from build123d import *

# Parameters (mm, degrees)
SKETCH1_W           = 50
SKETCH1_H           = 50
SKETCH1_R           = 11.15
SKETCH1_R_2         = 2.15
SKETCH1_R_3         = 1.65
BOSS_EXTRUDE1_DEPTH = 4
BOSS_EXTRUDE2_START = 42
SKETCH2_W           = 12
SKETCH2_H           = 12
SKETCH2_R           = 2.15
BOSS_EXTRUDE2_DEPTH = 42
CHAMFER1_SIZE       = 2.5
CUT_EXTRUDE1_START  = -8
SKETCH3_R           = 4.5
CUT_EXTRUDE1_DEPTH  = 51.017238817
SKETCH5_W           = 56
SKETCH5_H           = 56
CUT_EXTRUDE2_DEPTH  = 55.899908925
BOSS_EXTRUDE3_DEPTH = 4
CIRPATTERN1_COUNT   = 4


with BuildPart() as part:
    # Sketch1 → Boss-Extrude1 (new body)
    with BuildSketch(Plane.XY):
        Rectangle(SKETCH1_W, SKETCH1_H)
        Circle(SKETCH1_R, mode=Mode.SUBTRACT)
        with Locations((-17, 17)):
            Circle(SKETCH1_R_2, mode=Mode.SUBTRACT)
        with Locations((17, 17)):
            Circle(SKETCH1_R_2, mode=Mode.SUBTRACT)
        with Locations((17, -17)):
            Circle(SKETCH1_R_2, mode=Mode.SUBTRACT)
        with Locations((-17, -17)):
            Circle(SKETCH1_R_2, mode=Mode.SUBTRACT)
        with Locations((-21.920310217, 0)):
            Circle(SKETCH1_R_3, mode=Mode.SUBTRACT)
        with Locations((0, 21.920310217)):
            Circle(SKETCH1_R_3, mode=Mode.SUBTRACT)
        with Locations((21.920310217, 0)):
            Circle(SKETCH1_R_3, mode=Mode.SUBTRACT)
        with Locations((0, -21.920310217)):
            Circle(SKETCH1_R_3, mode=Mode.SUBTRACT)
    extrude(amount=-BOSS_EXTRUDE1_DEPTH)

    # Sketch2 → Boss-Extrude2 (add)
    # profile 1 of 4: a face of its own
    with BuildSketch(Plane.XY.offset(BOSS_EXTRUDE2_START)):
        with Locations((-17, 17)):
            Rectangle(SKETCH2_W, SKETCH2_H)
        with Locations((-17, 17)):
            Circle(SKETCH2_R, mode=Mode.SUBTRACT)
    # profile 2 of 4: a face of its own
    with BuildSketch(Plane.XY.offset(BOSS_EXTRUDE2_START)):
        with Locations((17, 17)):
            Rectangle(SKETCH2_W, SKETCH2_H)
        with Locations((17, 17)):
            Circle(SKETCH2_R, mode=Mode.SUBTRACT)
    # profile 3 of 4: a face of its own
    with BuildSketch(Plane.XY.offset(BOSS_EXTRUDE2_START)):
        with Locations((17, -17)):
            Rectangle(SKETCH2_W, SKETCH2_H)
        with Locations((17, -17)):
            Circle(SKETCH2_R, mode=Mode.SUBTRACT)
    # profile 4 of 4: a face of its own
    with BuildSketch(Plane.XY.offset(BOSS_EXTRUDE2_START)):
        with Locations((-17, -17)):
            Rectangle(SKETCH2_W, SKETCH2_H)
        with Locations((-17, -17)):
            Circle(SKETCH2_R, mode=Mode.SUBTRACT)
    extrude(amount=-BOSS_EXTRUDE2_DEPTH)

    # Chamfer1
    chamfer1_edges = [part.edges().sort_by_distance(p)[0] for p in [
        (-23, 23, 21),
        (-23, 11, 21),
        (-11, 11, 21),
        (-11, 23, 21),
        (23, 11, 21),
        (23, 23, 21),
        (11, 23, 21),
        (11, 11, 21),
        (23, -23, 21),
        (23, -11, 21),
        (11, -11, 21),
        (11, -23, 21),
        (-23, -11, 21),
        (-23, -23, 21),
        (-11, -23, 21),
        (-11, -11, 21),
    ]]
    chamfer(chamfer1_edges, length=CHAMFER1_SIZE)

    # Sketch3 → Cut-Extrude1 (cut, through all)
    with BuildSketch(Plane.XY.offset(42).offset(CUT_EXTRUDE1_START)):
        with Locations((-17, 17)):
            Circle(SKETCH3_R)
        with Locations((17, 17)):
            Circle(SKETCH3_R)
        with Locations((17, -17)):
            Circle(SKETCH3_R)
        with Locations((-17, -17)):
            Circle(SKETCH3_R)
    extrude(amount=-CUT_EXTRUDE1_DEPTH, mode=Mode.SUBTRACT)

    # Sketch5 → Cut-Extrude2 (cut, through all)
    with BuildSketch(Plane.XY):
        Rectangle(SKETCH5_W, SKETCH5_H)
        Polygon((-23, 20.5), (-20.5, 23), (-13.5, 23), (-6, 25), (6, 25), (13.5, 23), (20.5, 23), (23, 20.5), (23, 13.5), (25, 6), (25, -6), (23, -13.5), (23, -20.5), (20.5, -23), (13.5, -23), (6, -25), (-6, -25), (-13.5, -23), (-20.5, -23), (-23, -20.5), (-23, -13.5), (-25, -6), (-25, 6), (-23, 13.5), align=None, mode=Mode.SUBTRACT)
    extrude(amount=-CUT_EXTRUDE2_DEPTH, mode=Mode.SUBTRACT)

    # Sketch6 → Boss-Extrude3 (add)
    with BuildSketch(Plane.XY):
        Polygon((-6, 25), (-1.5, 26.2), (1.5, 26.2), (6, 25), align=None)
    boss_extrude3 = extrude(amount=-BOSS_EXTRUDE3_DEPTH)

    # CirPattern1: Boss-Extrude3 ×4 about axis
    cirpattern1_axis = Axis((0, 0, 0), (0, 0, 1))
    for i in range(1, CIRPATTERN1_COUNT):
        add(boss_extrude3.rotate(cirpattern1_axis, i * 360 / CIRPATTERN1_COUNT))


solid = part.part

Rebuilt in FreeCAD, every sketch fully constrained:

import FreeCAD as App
import Part
import Sketcher


def edges_at(feature, points):
    """Names of the edges that pass closest to the given points."""
    edges = feature.Shape.Edges
    near = lambda p: min(range(len(edges)), key=lambda i: edges[i].distToShape(Part.Vertex(*p))[0])
    return sorted({f"Edge{near(p) + 1}" for p in points})

doc = App.newDocument("Part")
body = doc.addObject("PartDesign::Body", "Body")

# Sketch on XY plane
sketch1 = body.newObject("Sketcher::SketchObject", "Sketch")
sketch1.AttachmentSupport = (doc.getObject("XY_Plane"), [""])
sketch1.MapMode = "FlatFace"
sketch1.addGeometry([
    Part.LineSegment(App.Vector(-25, 25, 0), App.Vector(-25, -25, 0)),  # 0
    Part.LineSegment(App.Vector(-25, -25, 0), App.Vector(25, -25, 0)),  # 1
    Part.LineSegment(App.Vector(25, -25, 0), App.Vector(25, 25, 0)),  # 2
    Part.LineSegment(App.Vector(25, 25, 0), App.Vector(-25, 25, 0)),  # 3
    Part.Circle(App.Vector(-17, -17, 0), App.Vector(0, 0, 1), 2.15),  # 4
    Part.Circle(App.Vector(0, -21.92031, 0), App.Vector(0, 0, 1), 1.65),  # 5
    Part.Circle(App.Vector(17, -17, 0), App.Vector(0, 0, 1), 2.15),  # 6
    Part.Circle(App.Vector(-21.92031, 0, 0), App.Vector(0, 0, 1), 1.65),  # 7
    Part.Circle(App.Vector(-17, 17, 0), App.Vector(0, 0, 1), 2.15),  # 8
    Part.Circle(App.Vector(0, 0, 0), App.Vector(0, 0, 1), 11.15),  # 9
    Part.Circle(App.Vector(21.92031, 0, 0), App.Vector(0, 0, 1), 1.65),  # 10
    Part.Circle(App.Vector(0, 21.92031, 0), App.Vector(0, 0, 1), 1.65),  # 11
    Part.Circle(App.Vector(17, 17, 0), App.Vector(0, 0, 1), 2.15),  # 12
], False)
sketch1.addConstraint([
    Sketcher.Constraint("Coincident", 0, 2, 1, 1),
    Sketcher.Constraint("Coincident", 1, 2, 2, 1),
    Sketcher.Constraint("Coincident", 2, 2, 3, 1),
    Sketcher.Constraint("Coincident", 3, 2, 0, 1),
    Sketcher.Constraint("Vertical", 0),
    Sketcher.Constraint("Horizontal", 1),
    Sketcher.Constraint("Vertical", 2),
    Sketcher.Constraint("Horizontal", 3),
    Sketcher.Constraint("Coincident", 9, 3, -1, 1),
    Sketcher.Constraint("Equal", 4, 6),
    Sketcher.Constraint("Equal", 5, 7),
    Sketcher.Constraint("Equal", 6, 8),
    Sketcher.Constraint("Equal", 7, 10),
    Sketcher.Constraint("Equal", 10, 11),
    Sketcher.Constraint("Equal", 8, 12),
    Sketcher.Constraint("Symmetric", 6, 3, 8, 3, -1, 1),
    Sketcher.Constraint("Symmetric", 7, 3, 10, 3, -1, 1),
    Sketcher.Constraint("Symmetric", 5, 3, 11, 3, -1, 1),
    Sketcher.Constraint("Symmetric", 4, 3, 12, 3, -1, 1),
    Sketcher.Constraint("Symmetric", 0, 2, 2, 2, -1, 1),
    Sketcher.Constraint("Symmetric", 4, 3, 6, 3, -2),
    Sketcher.Constraint("PointOnObject", 5, 3, -2),
    Sketcher.Constraint("PointOnObject", 7, 3, -1),
    Sketcher.Constraint("Equal", 3, 0),
    Sketcher.Constraint("Diameter", 4, 4.3),
    Sketcher.Constraint("Diameter", 5, 3.3),
    Sketcher.Constraint("Diameter", 9, 22.3),
    Sketcher.Constraint("DistanceX", 1, 1, 1, 2, 50.0),
    Sketcher.Constraint("DistanceX", 4, 3, -1, 1, 17.0),
    Sketcher.Constraint("DistanceY", 4, 3, -1, 1, 17.0),
    Sketcher.Constraint("DistanceY", 5, 3, -1, 1, 21.92031),
    Sketcher.Constraint("DistanceX", 7, 3, -1, 1, 21.92031),
])
pad1 = body.newObject("PartDesign::Pad", "Pad")
pad1.Profile = sketch1
pad1.Length = 4
pad1.Reversed = True

# Sketch on XY plane
sketch2 = body.newObject("Sketcher::SketchObject", "Sketch001")
sketch2.AttachmentSupport = (doc.getObject("XY_Plane"), [""])
sketch2.MapMode = "FlatFace"
sketch2.AttachmentOffset = App.Placement(App.Vector(0, 0, 42), App.Rotation())
sketch2.addGeometry([
    Part.LineSegment(App.Vector(-23, 23, 0), App.Vector(-23, 11, 0)),  # 0
    Part.LineSegment(App.Vector(-23, 11, 0), App.Vector(-11, 11, 0)),  # 1
    Part.LineSegment(App.Vector(-11, 11, 0), App.Vector(-11, 23, 0)),  # 2
    Part.LineSegment(App.Vector(-11, 23, 0), App.Vector(-23, 23, 0)),  # 3
    Part.Circle(App.Vector(-17, 17, 0), App.Vector(0, 0, 1), 2.15),  # 4
    Part.LineSegment(App.Vector(11, 23, 0), App.Vector(11, 11, 0)),  # 5
    Part.LineSegment(App.Vector(11, 11, 0), App.Vector(23, 11, 0)),  # 6
    Part.LineSegment(App.Vector(23, 11, 0), App.Vector(23, 23, 0)),  # 7
    Part.LineSegment(App.Vector(23, 23, 0), App.Vector(11, 23, 0)),  # 8
    Part.Circle(App.Vector(17, 17, 0), App.Vector(0, 0, 1), 2.15),  # 9
    Part.LineSegment(App.Vector(11, -11, 0), App.Vector(11, -23, 0)),  # 10
    Part.LineSegment(App.Vector(11, -23, 0), App.Vector(23, -23, 0)),  # 11
    Part.LineSegment(App.Vector(23, -23, 0), App.Vector(23, -11, 0)),  # 12
    Part.LineSegment(App.Vector(23, -11, 0), App.Vector(11, -11, 0)),  # 13
    Part.Circle(App.Vector(17, -17, 0), App.Vector(0, 0, 1), 2.15),  # 14
    Part.LineSegment(App.Vector(-23, -11, 0), App.Vector(-23, -23, 0)),  # 15
    Part.LineSegment(App.Vector(-23, -23, 0), App.Vector(-11, -23, 0)),  # 16
    Part.LineSegment(App.Vector(-11, -23, 0), App.Vector(-11, -11, 0)),  # 17
    Part.LineSegment(App.Vector(-11, -11, 0), App.Vector(-23, -11, 0)),  # 18
    Part.Circle(App.Vector(-17, -17, 0), App.Vector(0, 0, 1), 2.15),  # 19
], False)
sketch2.addConstraint([
    Sketcher.Constraint("Coincident", 0, 2, 1, 1),
    Sketcher.Constraint("Coincident", 1, 2, 2, 1),
    Sketcher.Constraint("Coincident", 2, 2, 3, 1),
    Sketcher.Constraint("Coincident", 3, 2, 0, 1),
    Sketcher.Constraint("Coincident", 5, 2, 6, 1),
    Sketcher.Constraint("Coincident", 6, 2, 7, 1),
    Sketcher.Constraint("Coincident", 7, 2, 8, 1),
    Sketcher.Constraint("Coincident", 8, 2, 5, 1),
    Sketcher.Constraint("Coincident", 10, 2, 11, 1),
    Sketcher.Constraint("Coincident", 11, 2, 12, 1),
    Sketcher.Constraint("Coincident", 12, 2, 13, 1),
    Sketcher.Constraint("Coincident", 13, 2, 10, 1),
    Sketcher.Constraint("Coincident", 15, 2, 16, 1),
    Sketcher.Constraint("Coincident", 16, 2, 17, 1),
    Sketcher.Constraint("Coincident", 17, 2, 18, 1),
    Sketcher.Constraint("Coincident", 18, 2, 15, 1),
    Sketcher.Constraint("Vertical", 0),
    Sketcher.Constraint("Horizontal", 1),
    Sketcher.Constraint("Vertical", 2),
    Sketcher.Constraint("Horizontal", 3),
    Sketcher.Constraint("Vertical", 5),
    Sketcher.Constraint("Horizontal", 6),
    Sketcher.Constraint("Vertical", 7),
    Sketcher.Constraint("Horizontal", 8),
    Sketcher.Constraint("Vertical", 10),
    Sketcher.Constraint("Horizontal", 11),
    Sketcher.Constraint("Vertical", 12),
    Sketcher.Constraint("Horizontal", 13),
    Sketcher.Constraint("Vertical", 15),
    Sketcher.Constraint("Horizontal", 16),
    Sketcher.Constraint("Vertical", 17),
    Sketcher.Constraint("Horizontal", 18),
    Sketcher.Constraint("Equal", 4, 9),
    Sketcher.Constraint("Equal", 9, 14),
    Sketcher.Constraint("Equal", 14, 19),
    Sketcher.Constraint("Symmetric", 4, 3, 14, 3, -1, 1),
    Sketcher.Constraint("Symmetric", 9, 3, 19, 3, -1, 1),
    Sketcher.Constraint("Symmetric", 2, 2, 10, 2, -1, 1),
    Sketcher.Constraint("Symmetric", 0, 2, 12, 2, -1, 1),
    Sketcher.Constraint("Symmetric", 7, 2, 15, 2, -1, 1),
    Sketcher.Constraint("Symmetric", 5, 2, 17, 2, -1, 1),
    Sketcher.Constraint("Symmetric", 4, 3, 9, 3, -2),
    Sketcher.Constraint("Symmetric", 1, 2, 5, 2, -2),
    Sketcher.Constraint("Symmetric", 3, 2, 7, 2, -2),
    Sketcher.Constraint("Equal", 18, 0),
    Sketcher.Constraint("Diameter", 4, 4.3),
    Sketcher.Constraint("DistanceX", 1, 1, 1, 2, 12.0),
    Sketcher.Constraint("DistanceX", 4, 3, -1, 1, 17.0),
    Sketcher.Constraint("DistanceY", -1, 1, 4, 3, 17.0),
    Sketcher.Constraint("DistanceX", 0, 2, -1, 1, 23.0),
    Sketcher.Constraint("DistanceY", -1, 1, 0, 2, 11.0),
])
pad2 = body.newObject("PartDesign::Pad", "Pad001")
pad2.Profile = sketch2
pad2.Length = 42
pad2.Reversed = True
doc.recompute()

chamfer = body.newObject("PartDesign::Chamfer", "Chamfer")
chamfer.Base = (pad2, edges_at(pad2, [
    (-23, 23, 21),
    (-23, 11, 21),
    (-11, 11, 21),
    (-11, 23, 21),
    (23, 11, 21),
    (23, 23, 21),
    (11, 23, 21),
    (11, 11, 21),
    (23, -23, 21),
    (23, -11, 21),
    (11, -11, 21),
    (11, -23, 21),
    (-23, -11, 21),
    (-23, -23, 21),
    (-11, -23, 21),
    (-11, -11, 21),
]))
chamfer.Size = 2.5

# Sketch on XY plane
sketch3 = body.newObject("Sketcher::SketchObject", "Sketch002")
sketch3.AttachmentSupport = (doc.getObject("XY_Plane"), [""])
sketch3.MapMode = "FlatFace"
sketch3.AttachmentOffset = App.Placement(App.Vector(0, 0, 34), App.Rotation())
sketch3.addGeometry([
    Part.Circle(App.Vector(-17, 17, 0), App.Vector(0, 0, 1), 4.5),
    Part.Circle(App.Vector(17, 17, 0), App.Vector(0, 0, 1), 4.5),
    Part.Circle(App.Vector(17, -17, 0), App.Vector(0, 0, 1), 4.5),
    Part.Circle(App.Vector(-17, -17, 0), App.Vector(0, 0, 1), 4.5),
], False)
sketch3.addConstraint([
    Sketcher.Constraint("Equal", 0, 1),
    Sketcher.Constraint("Equal", 1, 2),
    Sketcher.Constraint("Equal", 2, 3),
    Sketcher.Constraint("Symmetric", 0, 3, 2, 3, -1, 1),
    Sketcher.Constraint("Symmetric", 1, 3, 3, 3, -1, 1),
    Sketcher.Constraint("Symmetric", 0, 3, 1, 3, -2),
    Sketcher.Constraint("Diameter", 0, 9.0),
    Sketcher.Constraint("DistanceX", 0, 3, -1, 1, 17.0),
    Sketcher.Constraint("DistanceY", -1, 1, 0, 3, 17.0),
])
pocket1 = body.newObject("PartDesign::Pocket", "Pocket")
pocket1.Profile = sketch3
pocket1.Type = "ThroughAll"

# Sketch on XY plane
sketch4 = body.newObject("Sketcher::SketchObject", "Sketch003")
sketch4.AttachmentSupport = (doc.getObject("XY_Plane"), [""])
sketch4.MapMode = "FlatFace"
sketch4.addGeometry([
    Part.LineSegment(App.Vector(-28, 28, 0), App.Vector(-28, -28, 0)),  # 0
    Part.LineSegment(App.Vector(-28, -28, 0), App.Vector(28, -28, 0)),  # 1
    Part.LineSegment(App.Vector(28, -28, 0), App.Vector(28, 28, 0)),  # 2
    Part.LineSegment(App.Vector(28, 28, 0), App.Vector(-28, 28, 0)),  # 3
    Part.LineSegment(App.Vector(-23, 13.5, 0), App.Vector(-23, 20.5, 0)),  # 4
    Part.LineSegment(App.Vector(-23, 20.5, 0), App.Vector(-20.5, 23, 0)),  # 5
    Part.LineSegment(App.Vector(-20.5, 23, 0), App.Vector(-13.5, 23, 0)),  # 6
    Part.LineSegment(App.Vector(-13.5, 23, 0), App.Vector(-6, 25, 0)),  # 7
    Part.LineSegment(App.Vector(-6, 25, 0), App.Vector(6, 25, 0)),  # 8
    Part.LineSegment(App.Vector(6, 25, 0), App.Vector(13.5, 23, 0)),  # 9
    Part.LineSegment(App.Vector(13.5, 23, 0), App.Vector(20.5, 23, 0)),  # 10
    Part.LineSegment(App.Vector(20.5, 23, 0), App.Vector(23, 20.5, 0)),  # 11
    Part.LineSegment(App.Vector(23, 20.5, 0), App.Vector(23, 13.5, 0)),  # 12
    Part.LineSegment(App.Vector(23, 13.5, 0), App.Vector(25, 6, 0)),  # 13
    Part.LineSegment(App.Vector(25, 6, 0), App.Vector(25, -6, 0)),  # 14
    Part.LineSegment(App.Vector(25, -6, 0), App.Vector(23, -13.5, 0)),  # 15
    Part.LineSegment(App.Vector(23, -13.5, 0), App.Vector(23, -20.5, 0)),  # 16
    Part.LineSegment(App.Vector(23, -20.5, 0), App.Vector(20.5, -23, 0)),  # 17
    Part.LineSegment(App.Vector(20.5, -23, 0), App.Vector(13.5, -23, 0)),  # 18
    Part.LineSegment(App.Vector(13.5, -23, 0), App.Vector(6, -25, 0)),  # 19
    Part.LineSegment(App.Vector(6, -25, 0), App.Vector(-6, -25, 0)),  # 20
    Part.LineSegment(App.Vector(-6, -25, 0), App.Vector(-13.5, -23, 0)),  # 21
    Part.LineSegment(App.Vector(-13.5, -23, 0), App.Vector(-20.5, -23, 0)),  # 22
    Part.LineSegment(App.Vector(-20.5, -23, 0), App.Vector(-23, -20.5, 0)),  # 23
    Part.LineSegment(App.Vector(-23, -20.5, 0), App.Vector(-23, -13.5, 0)),  # 24
    Part.LineSegment(App.Vector(-23, -13.5, 0), App.Vector(-25, -6, 0)),  # 25
    Part.LineSegment(App.Vector(-25, -6, 0), App.Vector(-25, 6, 0)),  # 26
    Part.LineSegment(App.Vector(-25, 6, 0), App.Vector(-23, 13.5, 0)),  # 27
], False)
sketch4.addConstraint([
    Sketcher.Constraint("Coincident", 0, 2, 1, 1),
    Sketcher.Constraint("Coincident", 1, 2, 2, 1),
    Sketcher.Constraint("Coincident", 2, 2, 3, 1),
    Sketcher.Constraint("Coincident", 3, 2, 0, 1),
    Sketcher.Constraint("Coincident", 4, 2, 5, 1),
    Sketcher.Constraint("Coincident", 5, 2, 6, 1),
    Sketcher.Constraint("Coincident", 6, 2, 7, 1),
    Sketcher.Constraint("Coincident", 7, 2, 8, 1),
    Sketcher.Constraint("Coincident", 8, 2, 9, 1),
    Sketcher.Constraint("Coincident", 9, 2, 10, 1),
    Sketcher.Constraint("Coincident", 10, 2, 11, 1),
    Sketcher.Constraint("Coincident", 11, 2, 12, 1),
    Sketcher.Constraint("Coincident", 12, 2, 13, 1),
    Sketcher.Constraint("Coincident", 13, 2, 14, 1),
    Sketcher.Constraint("Coincident", 14, 2, 15, 1),
    Sketcher.Constraint("Coincident", 15, 2, 16, 1),
    Sketcher.Constraint("Coincident", 16, 2, 17, 1),
    Sketcher.Constraint("Coincident", 17, 2, 18, 1),
    Sketcher.Constraint("Coincident", 18, 2, 19, 1),
    Sketcher.Constraint("Coincident", 19, 2, 20, 1),
    Sketcher.Constraint("Coincident", 20, 2, 21, 1),
    Sketcher.Constraint("Coincident", 21, 2, 22, 1),
    Sketcher.Constraint("Coincident", 22, 2, 23, 1),
    Sketcher.Constraint("Coincident", 23, 2, 24, 1),
    Sketcher.Constraint("Coincident", 24, 2, 25, 1),
    Sketcher.Constraint("Coincident", 25, 2, 26, 1),
    Sketcher.Constraint("Coincident", 26, 2, 27, 1),
    Sketcher.Constraint("Coincident", 27, 2, 4, 1),
    Sketcher.Constraint("Vertical", 0),
    Sketcher.Constraint("Horizontal", 1),
    Sketcher.Constraint("Vertical", 2),
    Sketcher.Constraint("Horizontal", 3),
    Sketcher.Constraint("Vertical", 4),
    Sketcher.Constraint("Horizontal", 6),
    Sketcher.Constraint("Horizontal", 8),
    Sketcher.Constraint("Horizontal", 10),
    Sketcher.Constraint("Vertical", 12),
    Sketcher.Constraint("Vertical", 14),
    Sketcher.Constraint("Vertical", 16),
    Sketcher.Constraint("Horizontal", 18),
    Sketcher.Constraint("Horizontal", 20),
    Sketcher.Constraint("Horizontal", 22),
    Sketcher.Constraint("Vertical", 24),
    Sketcher.Constraint("Vertical", 26),
    Sketcher.Constraint("Symmetric", 0, 2, 2, 2, -1, 1),
    Sketcher.Constraint("Symmetric", 4, 2, 16, 2, -1, 1),
    Sketcher.Constraint("Symmetric", 5, 2, 17, 2, -1, 1),
    Sketcher.Constraint("Symmetric", 7, 2, 19, 2, -1, 1),
    Sketcher.Constraint("Symmetric", 9, 2, 21, 2, -1, 1),
    Sketcher.Constraint("Symmetric", 11, 2, 23, 2, -1, 1),
    Sketcher.Constraint("Symmetric", 13, 2, 25, 2, -1, 1),
    Sketcher.Constraint("Symmetric", 6, 2, 9, 2, -2),
    Sketcher.Constraint("Symmetric", 4, 2, 11, 2, -2),
    Sketcher.Constraint("Perpendicular", 5, 11),
    Sketcher.Constraint("Perpendicular", 7, 13),
    Sketcher.Constraint("Perpendicular", 9, 15),
    Sketcher.Constraint("Perpendicular", 13, 19),
    Sketcher.Constraint("Perpendicular", 15, 21),
    Sketcher.Constraint("Perpendicular", 17, 23),
    Sketcher.Constraint("Perpendicular", 19, 25),
    Sketcher.Constraint("Perpendicular", 21, 27),
    Sketcher.Constraint("Horizontal", 15, 2, 24, 2),
    Sketcher.Constraint("Horizontal", 14, 2, 25, 2),
    Sketcher.Constraint("Horizontal", 13, 2, 26, 2),
    Sketcher.Constraint("Vertical", 10, 2, 17, 2),
    Sketcher.Constraint("Equal", 3, 0),
    Sketcher.Constraint("Equal", 22, 4),
    Sketcher.Constraint("Equal", 20, 14),
    Sketcher.Constraint("Equal", 9, 13),
    Sketcher.Constraint("DistanceX", 1, 1, 1, 2, 56.0),
    Sketcher.Constraint("DistanceX", 6, 1, 6, 2, 7.0),
    Sketcher.Constraint("DistanceX", 8, 1, 8, 2, 12.0),
    Sketcher.Constraint("DistanceX", 4, 2, -1, 1, 23.0),
    Sketcher.Constraint("DistanceY", -1, 1, 7, 2, 25.0),
    Sketcher.Constraint("DistanceX", 6, 2, 9, 2, 27.0),
])
pocket2 = body.newObject("PartDesign::Pocket", "Pocket001")
pocket2.Profile = sketch4
pocket2.Type = "ThroughAll"

# Sketch on XY plane
sketch5 = body.newObject("Sketcher::SketchObject", "Sketch004")
sketch5.AttachmentSupport = (doc.getObject("XY_Plane"), [""])
sketch5.MapMode = "FlatFace"
sketch5.addGeometry([
    Part.LineSegment(App.Vector(-1.5, 26.2, 0), App.Vector(-6, 25, 0)),
    Part.LineSegment(App.Vector(-6, 25, 0), App.Vector(6, 25, 0)),
    Part.LineSegment(App.Vector(6, 25, 0), App.Vector(1.5, 26.2, 0)),
    Part.LineSegment(App.Vector(1.5, 26.2, 0), App.Vector(-1.5, 26.2, 0)),
], False)
sketch5.addConstraint([
    Sketcher.Constraint("Coincident", 0, 2, 1, 1),
    Sketcher.Constraint("Coincident", 1, 2, 2, 1),
    Sketcher.Constraint("Coincident", 2, 2, 3, 1),
    Sketcher.Constraint("Coincident", 3, 2, 0, 1),
    Sketcher.Constraint("Horizontal", 1),
    Sketcher.Constraint("Horizontal", 3),
    Sketcher.Constraint("Equal", 0, 2),
    Sketcher.Constraint("DistanceX", 1, 1, 1, 2, 12.0),
    Sketcher.Constraint("DistanceX", 3, 2, 3, 1, 3.0),
    Sketcher.Constraint("DistanceX", 0, 2, -1, 1, 6.0),
    Sketcher.Constraint("DistanceY", -1, 1, 0, 2, 25.0),
    Sketcher.Constraint("DistanceY", -1, 1, 2, 2, 26.2),
])
pad3 = body.newObject("PartDesign::Pad", "Pad002")
pad3.Profile = sketch5
pad3.Length = 4
pad3.Reversed = True
doc.recompute()

polarpattern = body.newObject("PartDesign::PolarPattern", "PolarPattern")
polarpattern.Originals = [pad3]
polarpattern.Axis = (doc.getObject("Z_Axis"), [""])
polarpattern.Angle = 360
polarpattern.Occurrences = 4
body.Tip = polarpattern

doc.recompute()
